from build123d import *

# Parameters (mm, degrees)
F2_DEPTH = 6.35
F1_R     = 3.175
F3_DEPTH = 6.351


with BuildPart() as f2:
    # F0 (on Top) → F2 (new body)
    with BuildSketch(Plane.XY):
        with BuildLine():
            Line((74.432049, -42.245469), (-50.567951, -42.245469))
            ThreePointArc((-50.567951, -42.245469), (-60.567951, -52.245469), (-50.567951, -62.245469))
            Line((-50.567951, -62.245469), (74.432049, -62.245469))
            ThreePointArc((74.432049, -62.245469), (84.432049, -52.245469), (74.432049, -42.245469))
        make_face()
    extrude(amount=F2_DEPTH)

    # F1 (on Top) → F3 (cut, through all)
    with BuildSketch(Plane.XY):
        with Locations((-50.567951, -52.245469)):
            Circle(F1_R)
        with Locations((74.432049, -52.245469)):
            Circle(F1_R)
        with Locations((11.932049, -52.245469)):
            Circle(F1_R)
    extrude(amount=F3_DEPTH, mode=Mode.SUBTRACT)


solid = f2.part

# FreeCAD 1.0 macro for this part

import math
import FreeCAD as App
import Part
import Sketcher
from FreeCAD import Vector
Q = App.Units.Quantity

doc = App.newDocument("Part")
body = doc.addObject("PartDesign::Body", "Body")

sketch1 = body.newObject("Sketcher::SketchObject", "Sketch")
sketch1.AttachmentSupport = (doc.getObject("XY_Plane"), [""])
sketch1.MapMode = "FlatFace"
sketch1.addGeometry(Part.LineSegment(Vector(74, -42, 0), Vector(-51, -42, 0)), False)
sketch1.addGeometry(Part.ArcOfCircle(Part.Circle(Vector(-51, -52, 0), Vector(0, 0, 1), 10), math.radians(90), math.radians(270)), False)
sketch1.addGeometry(Part.LineSegment(Vector(-51, -62, 0), Vector(74, -62, 0)), False)
sketch1.addGeometry(Part.ArcOfCircle(Part.Circle(Vector(74, -52, 0), Vector(0, 0, 1), 10), math.radians(-90), math.radians(90)), False)
sketch1.addConstraint(Sketcher.Constraint("Tangent", 0, 2, 1, 1))
sketch1.addConstraint(Sketcher.Constraint("Tangent", 1, 2, 2, 1))
sketch1.addConstraint(Sketcher.Constraint("Tangent", 2, 2, 3, 1))
sketch1.addConstraint(Sketcher.Constraint("Tangent", 3, 2, 0, 1))
sketch1.addConstraint(Sketcher.Constraint("Horizontal", 0))
sketch1.addConstraint(Sketcher.Constraint("Horizontal", 2))
sketch1.addConstraint(Sketcher.Constraint("Radius", 1, Q("10 mm")))
sketch1.addConstraint(Sketcher.Constraint("DistanceX", 0, 2, 0, 1, Q("125 mm")))
sketch1.addConstraint(Sketcher.Constraint("DistanceX", 1, 3, -1, 1, Q("50.567951 mm")))
sketch1.addConstraint(Sketcher.Constraint("DistanceY", 1, 3, -1, 1, Q("52.245469 mm")))
pad1 = body.newObject("PartDesign::Pad", "Pad")
pad1.Profile = sketch1
pad1.Length = 6.35

sketch2 = body.newObject("Sketcher::SketchObject", "Sketch001")
sketch2.AttachmentSupport = (doc.getObject("XY_Plane"), [""])
sketch2.MapMode = "FlatFace"
sketch2.addGeometry(Part.Circle(Vector(-50.6, -52.2, 0), Vector(0, 0, 1), 3.2), False)
sketch2.addGeometry(Part.Circle(Vector(74.4, -52.2, 0), Vector(0, 0, 1), 3.2), False)
sketch2.addGeometry(Part.Circle(Vector(11.9, -52.2, 0), Vector(0, 0, 1), 3.2), False)
sketch2.addConstraint(Sketcher.Constraint("Equal", 0, 1))
sketch2.addConstraint(Sketcher.Constraint("Equal", 1, 2))
sketch2.addConstraint(Sketcher.Constraint("Horizontal", 0, 3, 1, 3))
sketch2.addConstraint(Sketcher.Constraint("Horizontal", 1, 3, 2, 3))
sketch2.addConstraint(Sketcher.Constraint("Diameter", 0, Q("6.35 mm")))
sketch2.addConstraint(Sketcher.Constraint("DistanceX", 0, 3, 1, 3, Q("125 mm")))
sketch2.addConstraint(Sketcher.Constraint("DistanceX", 0, 3, 2, 3, Q("62.5 mm")))
sketch2.addConstraint(Sketcher.Constraint("DistanceX", 0, 3, -1, 1, Q("50.567951 mm")))
sketch2.addConstraint(Sketcher.Constraint("DistanceY", 0, 3, -1, 1, Q("52.245469 mm")))
pocket1 = body.newObject("PartDesign::Pocket", "Pocket")
pocket1.Profile = sketch2
pocket1.Type = "ThroughAll"
pocket1.Reversed = True

doc.recompute()
